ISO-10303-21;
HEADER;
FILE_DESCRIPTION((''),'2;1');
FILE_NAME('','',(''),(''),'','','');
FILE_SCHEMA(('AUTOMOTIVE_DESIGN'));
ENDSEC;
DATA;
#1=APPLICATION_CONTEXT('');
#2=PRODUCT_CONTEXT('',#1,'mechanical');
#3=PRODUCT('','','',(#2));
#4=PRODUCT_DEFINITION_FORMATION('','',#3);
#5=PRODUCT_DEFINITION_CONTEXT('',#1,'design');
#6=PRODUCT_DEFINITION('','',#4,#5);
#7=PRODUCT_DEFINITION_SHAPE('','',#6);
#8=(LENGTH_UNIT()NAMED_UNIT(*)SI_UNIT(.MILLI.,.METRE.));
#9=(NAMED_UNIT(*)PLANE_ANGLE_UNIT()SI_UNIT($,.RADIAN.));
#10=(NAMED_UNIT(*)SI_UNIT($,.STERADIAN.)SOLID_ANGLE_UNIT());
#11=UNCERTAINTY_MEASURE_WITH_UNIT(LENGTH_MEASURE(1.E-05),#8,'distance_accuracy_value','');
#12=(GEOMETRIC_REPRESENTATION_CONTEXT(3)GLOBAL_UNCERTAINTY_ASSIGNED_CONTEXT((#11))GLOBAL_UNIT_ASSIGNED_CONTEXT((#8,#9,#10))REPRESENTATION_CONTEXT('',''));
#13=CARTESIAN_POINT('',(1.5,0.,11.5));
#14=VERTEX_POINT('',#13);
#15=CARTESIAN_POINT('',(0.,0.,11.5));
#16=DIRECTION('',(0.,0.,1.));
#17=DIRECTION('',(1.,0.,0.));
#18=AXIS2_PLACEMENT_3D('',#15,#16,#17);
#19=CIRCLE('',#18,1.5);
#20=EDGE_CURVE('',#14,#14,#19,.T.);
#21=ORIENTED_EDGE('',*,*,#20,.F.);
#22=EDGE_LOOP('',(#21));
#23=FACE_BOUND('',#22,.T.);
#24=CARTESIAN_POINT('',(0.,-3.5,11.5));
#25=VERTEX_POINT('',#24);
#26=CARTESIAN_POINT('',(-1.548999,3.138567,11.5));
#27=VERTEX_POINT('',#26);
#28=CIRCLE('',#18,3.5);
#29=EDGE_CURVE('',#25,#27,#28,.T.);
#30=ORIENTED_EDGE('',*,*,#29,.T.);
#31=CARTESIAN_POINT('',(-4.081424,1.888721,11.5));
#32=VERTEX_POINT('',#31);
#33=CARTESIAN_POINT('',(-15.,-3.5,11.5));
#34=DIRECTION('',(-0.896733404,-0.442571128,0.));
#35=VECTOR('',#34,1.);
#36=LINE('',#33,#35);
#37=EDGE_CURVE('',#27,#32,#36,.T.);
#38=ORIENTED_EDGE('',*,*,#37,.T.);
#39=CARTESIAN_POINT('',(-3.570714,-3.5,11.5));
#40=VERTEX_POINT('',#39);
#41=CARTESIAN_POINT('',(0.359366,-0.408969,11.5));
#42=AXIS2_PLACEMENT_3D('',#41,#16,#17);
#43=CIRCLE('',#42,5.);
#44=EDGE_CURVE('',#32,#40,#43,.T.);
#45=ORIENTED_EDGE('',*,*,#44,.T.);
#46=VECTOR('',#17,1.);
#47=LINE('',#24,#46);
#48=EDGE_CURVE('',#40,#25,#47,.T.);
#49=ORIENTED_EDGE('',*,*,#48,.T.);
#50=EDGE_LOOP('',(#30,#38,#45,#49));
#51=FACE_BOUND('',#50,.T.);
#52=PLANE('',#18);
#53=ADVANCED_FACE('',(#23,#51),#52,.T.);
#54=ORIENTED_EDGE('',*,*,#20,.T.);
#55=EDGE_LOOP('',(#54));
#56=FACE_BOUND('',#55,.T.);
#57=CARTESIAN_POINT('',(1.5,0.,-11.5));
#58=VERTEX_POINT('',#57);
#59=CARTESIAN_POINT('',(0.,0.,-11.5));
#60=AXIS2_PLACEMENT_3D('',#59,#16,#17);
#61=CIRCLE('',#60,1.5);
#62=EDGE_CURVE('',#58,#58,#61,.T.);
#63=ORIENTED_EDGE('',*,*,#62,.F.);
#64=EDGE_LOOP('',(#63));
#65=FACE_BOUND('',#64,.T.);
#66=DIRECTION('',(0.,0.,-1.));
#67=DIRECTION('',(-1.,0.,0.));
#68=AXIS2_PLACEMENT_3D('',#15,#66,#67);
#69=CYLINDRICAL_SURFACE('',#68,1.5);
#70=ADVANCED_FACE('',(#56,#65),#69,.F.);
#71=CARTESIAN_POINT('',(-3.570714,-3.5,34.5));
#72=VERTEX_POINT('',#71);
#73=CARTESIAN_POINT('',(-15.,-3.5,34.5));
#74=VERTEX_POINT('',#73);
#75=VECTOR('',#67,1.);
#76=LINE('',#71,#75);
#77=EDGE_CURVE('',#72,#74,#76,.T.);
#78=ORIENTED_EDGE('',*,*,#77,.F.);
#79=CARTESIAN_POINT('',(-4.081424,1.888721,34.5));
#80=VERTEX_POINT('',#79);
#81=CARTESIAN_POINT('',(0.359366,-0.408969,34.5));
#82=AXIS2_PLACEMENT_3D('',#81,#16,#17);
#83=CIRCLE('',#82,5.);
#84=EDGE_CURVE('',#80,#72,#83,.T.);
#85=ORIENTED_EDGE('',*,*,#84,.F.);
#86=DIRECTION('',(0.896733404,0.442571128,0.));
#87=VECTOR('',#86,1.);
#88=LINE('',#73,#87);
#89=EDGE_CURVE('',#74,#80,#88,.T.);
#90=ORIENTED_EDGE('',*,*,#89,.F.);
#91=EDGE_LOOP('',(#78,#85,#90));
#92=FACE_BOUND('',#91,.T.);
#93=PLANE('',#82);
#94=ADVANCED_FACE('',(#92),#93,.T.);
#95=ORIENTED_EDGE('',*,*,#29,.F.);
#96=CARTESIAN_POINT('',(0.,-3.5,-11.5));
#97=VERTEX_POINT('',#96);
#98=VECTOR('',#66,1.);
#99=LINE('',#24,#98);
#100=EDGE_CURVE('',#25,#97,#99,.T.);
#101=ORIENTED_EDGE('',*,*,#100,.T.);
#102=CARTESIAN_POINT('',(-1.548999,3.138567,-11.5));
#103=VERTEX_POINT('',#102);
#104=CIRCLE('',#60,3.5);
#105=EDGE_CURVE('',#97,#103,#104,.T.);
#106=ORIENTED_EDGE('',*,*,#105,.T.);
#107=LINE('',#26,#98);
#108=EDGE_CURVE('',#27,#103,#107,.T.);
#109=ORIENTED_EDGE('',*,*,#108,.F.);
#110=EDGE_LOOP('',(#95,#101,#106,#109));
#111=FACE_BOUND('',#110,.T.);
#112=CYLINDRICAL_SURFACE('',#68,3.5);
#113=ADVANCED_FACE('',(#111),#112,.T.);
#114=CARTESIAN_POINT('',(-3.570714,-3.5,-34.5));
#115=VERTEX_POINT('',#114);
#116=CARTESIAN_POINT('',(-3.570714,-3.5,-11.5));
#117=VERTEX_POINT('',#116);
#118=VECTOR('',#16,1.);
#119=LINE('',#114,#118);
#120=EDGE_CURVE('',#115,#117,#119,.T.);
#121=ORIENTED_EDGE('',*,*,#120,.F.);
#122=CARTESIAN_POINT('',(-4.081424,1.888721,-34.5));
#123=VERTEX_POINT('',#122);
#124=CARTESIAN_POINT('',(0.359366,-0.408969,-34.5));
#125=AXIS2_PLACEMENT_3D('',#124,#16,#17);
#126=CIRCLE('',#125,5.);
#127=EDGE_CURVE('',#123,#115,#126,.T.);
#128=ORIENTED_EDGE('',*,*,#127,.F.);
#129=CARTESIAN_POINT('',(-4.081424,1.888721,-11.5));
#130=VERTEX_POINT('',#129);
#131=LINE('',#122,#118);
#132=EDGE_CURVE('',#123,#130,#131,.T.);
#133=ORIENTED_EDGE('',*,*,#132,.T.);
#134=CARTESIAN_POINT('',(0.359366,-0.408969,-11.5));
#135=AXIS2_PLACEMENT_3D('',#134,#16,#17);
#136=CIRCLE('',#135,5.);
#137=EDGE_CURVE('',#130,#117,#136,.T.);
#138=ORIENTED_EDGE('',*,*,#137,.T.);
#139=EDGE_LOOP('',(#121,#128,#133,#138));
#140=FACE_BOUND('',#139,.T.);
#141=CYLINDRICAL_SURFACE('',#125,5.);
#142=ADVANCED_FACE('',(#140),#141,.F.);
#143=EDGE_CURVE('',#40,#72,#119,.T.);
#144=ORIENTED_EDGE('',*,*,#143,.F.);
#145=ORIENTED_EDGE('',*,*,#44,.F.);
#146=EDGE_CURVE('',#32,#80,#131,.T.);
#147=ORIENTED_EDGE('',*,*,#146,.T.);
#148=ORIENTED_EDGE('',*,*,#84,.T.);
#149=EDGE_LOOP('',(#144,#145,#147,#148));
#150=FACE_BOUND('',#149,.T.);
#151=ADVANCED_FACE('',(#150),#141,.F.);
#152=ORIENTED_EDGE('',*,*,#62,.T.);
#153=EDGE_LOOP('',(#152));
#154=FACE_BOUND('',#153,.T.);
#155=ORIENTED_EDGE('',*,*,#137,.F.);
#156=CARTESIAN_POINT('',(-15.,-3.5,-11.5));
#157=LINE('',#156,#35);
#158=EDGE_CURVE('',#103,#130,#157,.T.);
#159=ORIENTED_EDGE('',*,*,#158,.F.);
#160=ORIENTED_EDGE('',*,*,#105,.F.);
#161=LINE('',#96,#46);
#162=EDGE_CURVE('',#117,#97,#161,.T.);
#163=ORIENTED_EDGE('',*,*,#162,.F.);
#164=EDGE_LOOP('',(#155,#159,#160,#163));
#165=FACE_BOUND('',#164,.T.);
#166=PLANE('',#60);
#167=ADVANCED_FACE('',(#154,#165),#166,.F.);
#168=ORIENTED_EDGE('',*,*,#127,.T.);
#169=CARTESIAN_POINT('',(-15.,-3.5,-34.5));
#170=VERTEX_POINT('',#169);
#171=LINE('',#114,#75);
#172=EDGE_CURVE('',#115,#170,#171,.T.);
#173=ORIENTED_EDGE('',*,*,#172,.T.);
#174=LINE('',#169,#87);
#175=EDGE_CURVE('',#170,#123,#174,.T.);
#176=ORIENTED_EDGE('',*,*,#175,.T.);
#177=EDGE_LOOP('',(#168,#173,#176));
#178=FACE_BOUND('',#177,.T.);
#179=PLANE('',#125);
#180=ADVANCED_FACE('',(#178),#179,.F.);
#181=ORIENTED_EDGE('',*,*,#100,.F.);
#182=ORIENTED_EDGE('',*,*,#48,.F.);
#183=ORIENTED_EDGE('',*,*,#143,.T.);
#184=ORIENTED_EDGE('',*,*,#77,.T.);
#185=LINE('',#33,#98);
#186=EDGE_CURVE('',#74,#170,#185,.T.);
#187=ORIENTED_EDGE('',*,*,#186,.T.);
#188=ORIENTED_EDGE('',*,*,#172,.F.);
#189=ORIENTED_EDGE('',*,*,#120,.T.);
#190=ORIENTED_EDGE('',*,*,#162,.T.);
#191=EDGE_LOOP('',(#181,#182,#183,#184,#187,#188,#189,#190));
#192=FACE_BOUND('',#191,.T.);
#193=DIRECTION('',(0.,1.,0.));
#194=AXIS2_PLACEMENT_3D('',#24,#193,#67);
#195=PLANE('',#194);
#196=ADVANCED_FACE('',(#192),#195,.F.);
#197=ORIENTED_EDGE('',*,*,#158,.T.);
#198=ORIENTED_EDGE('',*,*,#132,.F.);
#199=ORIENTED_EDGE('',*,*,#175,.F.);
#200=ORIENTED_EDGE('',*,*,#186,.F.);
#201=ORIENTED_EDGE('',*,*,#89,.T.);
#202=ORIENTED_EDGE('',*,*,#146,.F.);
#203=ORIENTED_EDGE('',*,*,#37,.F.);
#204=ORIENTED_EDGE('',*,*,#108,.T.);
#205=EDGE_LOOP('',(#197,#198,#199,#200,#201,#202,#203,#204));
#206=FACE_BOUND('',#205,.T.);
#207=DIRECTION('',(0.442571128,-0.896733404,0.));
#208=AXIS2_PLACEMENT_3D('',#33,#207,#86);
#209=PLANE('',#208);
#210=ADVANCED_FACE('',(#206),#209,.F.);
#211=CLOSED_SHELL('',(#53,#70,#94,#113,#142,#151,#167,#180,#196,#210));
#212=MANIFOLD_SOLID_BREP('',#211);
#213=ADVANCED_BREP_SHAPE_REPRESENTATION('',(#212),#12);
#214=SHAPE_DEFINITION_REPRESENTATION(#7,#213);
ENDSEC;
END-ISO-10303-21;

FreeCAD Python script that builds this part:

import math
import FreeCAD as App
import Part
import Sketcher

doc = App.newDocument("Part")
body = doc.addObject("PartDesign::Body", "Body")

# Sketch on XY plane
sketch1 = body.newObject("Sketcher::SketchObject", "Sketch")
sketch1.AttachmentSupport = (doc.getObject("XY_Plane"), [""])
sketch1.MapMode = "FlatFace"
sketch1.addGeometry([
    Part.Circle(App.Vector(0, 0, 0), App.Vector(0, 0, 1), 3.5),
    Part.Circle(App.Vector(0, 0, 0), App.Vector(0, 0, 1), 1.5),
], False)
sketch1.addConstraint([
    Sketcher.Constraint("Coincident", 0, 3, -1, 1),
    Sketcher.Constraint("Coincident", 1, 3, -1, 1),
    Sketcher.Constraint("Diameter", 0, 7.0),
    Sketcher.Constraint("Diameter", 1, 3.0),
])
pad1 = body.newObject("PartDesign::Pad", "Pad")
pad1.Profile = sketch1
pad1.Length = 23
pad1.Midplane = True

# Sketch on XY plane
sketch2 = body.newObject("Sketcher::SketchObject", "Sketch001")
sketch2.AttachmentSupport = (doc.getObject("XY_Plane"), [""])
sketch2.MapMode = "FlatFace"
sketch2.addGeometry([
    Part.LineSegment(App.Vector(-15, -3.5, 0), App.Vector(0, -3.5, 0)),
    Part.ArcOfCircle(Part.Circle(App.Vector(0, 0, 0), App.Vector(0, 0, 1), 3.5), math.radians(116), math.radians(270)),
    Part.LineSegment(App.Vector(-1.5, 3.1, 0), App.Vector(-15, -3.5, 0)),
], False)
sketch2.addConstraint([
    Sketcher.Constraint("Tangent", 0, 2, 1, 2),
    Sketcher.Constraint("Tangent", 1, 1, 2, 1),
    Sketcher.Constraint("Coincident", 2, 2, 0, 1),
    Sketcher.Constraint("Horizontal", 0),
    Sketcher.Constraint("Coincident", 1, 3, -1, 1),
    Sketcher.Constraint("Radius", 1, 3.5),
    Sketcher.Constraint("DistanceX", 0, 1, 0, 2, 15.0),
])
pad2 = body.newObject("PartDesign::Pad", "Pad001")
pad2.Profile = sketch2
pad2.Length = 23
pad2.Midplane = True

# Sketch on XY plane
sketch3 = body.newObject("Sketcher::SketchObject", "Sketch002")
sketch3.AttachmentSupport = (doc.getObject("XY_Plane"), [""])
sketch3.MapMode = "FlatFace"
sketch3.addGeometry([
    Part.LineSegment(App.Vector(-3.6, -3.5, 0), App.Vector(-15, -3.5, 0)),
    Part.LineSegment(App.Vector(-15, -3.5, 0), App.Vector(-4.1, 1.9, 0)),
    Part.ArcOfCircle(Part.Circle(App.Vector(0.4, -0.4, 0), App.Vector(0, 0, 1), 5), math.radians(153), math.radians(218)),
], False)
sketch3.addConstraint([
    Sketcher.Constraint("Coincident", 0, 2, 1, 1),
    Sketcher.Constraint("Coincident", 1, 2, 2, 1),
    Sketcher.Constraint("Coincident", 2, 2, 0, 1),
    Sketcher.Constraint("Horizontal", 0),
    Sketcher.Constraint("Radius", 2, 5.0),
    Sketcher.Constraint("DistanceX", 0, 2, -1, 1, 15.0),
    Sketcher.Constraint("DistanceY", 0, 2, -1, 1, 3.5),
    Sketcher.Constraint("DistanceX", 0, 2, 0, 1, 11.429286),
    Sketcher.Constraint("DistanceY", 2, 3, -1, 1, 0.408969),
    Sketcher.Constraint("DistanceY", -1, 1, 1, 2, 1.888721),
])
pad3 = body.newObject("PartDesign::Pad", "Pad002")
pad3.Profile = sketch3
pad3.Length = 69
pad3.Midplane = True

doc.recompute()
